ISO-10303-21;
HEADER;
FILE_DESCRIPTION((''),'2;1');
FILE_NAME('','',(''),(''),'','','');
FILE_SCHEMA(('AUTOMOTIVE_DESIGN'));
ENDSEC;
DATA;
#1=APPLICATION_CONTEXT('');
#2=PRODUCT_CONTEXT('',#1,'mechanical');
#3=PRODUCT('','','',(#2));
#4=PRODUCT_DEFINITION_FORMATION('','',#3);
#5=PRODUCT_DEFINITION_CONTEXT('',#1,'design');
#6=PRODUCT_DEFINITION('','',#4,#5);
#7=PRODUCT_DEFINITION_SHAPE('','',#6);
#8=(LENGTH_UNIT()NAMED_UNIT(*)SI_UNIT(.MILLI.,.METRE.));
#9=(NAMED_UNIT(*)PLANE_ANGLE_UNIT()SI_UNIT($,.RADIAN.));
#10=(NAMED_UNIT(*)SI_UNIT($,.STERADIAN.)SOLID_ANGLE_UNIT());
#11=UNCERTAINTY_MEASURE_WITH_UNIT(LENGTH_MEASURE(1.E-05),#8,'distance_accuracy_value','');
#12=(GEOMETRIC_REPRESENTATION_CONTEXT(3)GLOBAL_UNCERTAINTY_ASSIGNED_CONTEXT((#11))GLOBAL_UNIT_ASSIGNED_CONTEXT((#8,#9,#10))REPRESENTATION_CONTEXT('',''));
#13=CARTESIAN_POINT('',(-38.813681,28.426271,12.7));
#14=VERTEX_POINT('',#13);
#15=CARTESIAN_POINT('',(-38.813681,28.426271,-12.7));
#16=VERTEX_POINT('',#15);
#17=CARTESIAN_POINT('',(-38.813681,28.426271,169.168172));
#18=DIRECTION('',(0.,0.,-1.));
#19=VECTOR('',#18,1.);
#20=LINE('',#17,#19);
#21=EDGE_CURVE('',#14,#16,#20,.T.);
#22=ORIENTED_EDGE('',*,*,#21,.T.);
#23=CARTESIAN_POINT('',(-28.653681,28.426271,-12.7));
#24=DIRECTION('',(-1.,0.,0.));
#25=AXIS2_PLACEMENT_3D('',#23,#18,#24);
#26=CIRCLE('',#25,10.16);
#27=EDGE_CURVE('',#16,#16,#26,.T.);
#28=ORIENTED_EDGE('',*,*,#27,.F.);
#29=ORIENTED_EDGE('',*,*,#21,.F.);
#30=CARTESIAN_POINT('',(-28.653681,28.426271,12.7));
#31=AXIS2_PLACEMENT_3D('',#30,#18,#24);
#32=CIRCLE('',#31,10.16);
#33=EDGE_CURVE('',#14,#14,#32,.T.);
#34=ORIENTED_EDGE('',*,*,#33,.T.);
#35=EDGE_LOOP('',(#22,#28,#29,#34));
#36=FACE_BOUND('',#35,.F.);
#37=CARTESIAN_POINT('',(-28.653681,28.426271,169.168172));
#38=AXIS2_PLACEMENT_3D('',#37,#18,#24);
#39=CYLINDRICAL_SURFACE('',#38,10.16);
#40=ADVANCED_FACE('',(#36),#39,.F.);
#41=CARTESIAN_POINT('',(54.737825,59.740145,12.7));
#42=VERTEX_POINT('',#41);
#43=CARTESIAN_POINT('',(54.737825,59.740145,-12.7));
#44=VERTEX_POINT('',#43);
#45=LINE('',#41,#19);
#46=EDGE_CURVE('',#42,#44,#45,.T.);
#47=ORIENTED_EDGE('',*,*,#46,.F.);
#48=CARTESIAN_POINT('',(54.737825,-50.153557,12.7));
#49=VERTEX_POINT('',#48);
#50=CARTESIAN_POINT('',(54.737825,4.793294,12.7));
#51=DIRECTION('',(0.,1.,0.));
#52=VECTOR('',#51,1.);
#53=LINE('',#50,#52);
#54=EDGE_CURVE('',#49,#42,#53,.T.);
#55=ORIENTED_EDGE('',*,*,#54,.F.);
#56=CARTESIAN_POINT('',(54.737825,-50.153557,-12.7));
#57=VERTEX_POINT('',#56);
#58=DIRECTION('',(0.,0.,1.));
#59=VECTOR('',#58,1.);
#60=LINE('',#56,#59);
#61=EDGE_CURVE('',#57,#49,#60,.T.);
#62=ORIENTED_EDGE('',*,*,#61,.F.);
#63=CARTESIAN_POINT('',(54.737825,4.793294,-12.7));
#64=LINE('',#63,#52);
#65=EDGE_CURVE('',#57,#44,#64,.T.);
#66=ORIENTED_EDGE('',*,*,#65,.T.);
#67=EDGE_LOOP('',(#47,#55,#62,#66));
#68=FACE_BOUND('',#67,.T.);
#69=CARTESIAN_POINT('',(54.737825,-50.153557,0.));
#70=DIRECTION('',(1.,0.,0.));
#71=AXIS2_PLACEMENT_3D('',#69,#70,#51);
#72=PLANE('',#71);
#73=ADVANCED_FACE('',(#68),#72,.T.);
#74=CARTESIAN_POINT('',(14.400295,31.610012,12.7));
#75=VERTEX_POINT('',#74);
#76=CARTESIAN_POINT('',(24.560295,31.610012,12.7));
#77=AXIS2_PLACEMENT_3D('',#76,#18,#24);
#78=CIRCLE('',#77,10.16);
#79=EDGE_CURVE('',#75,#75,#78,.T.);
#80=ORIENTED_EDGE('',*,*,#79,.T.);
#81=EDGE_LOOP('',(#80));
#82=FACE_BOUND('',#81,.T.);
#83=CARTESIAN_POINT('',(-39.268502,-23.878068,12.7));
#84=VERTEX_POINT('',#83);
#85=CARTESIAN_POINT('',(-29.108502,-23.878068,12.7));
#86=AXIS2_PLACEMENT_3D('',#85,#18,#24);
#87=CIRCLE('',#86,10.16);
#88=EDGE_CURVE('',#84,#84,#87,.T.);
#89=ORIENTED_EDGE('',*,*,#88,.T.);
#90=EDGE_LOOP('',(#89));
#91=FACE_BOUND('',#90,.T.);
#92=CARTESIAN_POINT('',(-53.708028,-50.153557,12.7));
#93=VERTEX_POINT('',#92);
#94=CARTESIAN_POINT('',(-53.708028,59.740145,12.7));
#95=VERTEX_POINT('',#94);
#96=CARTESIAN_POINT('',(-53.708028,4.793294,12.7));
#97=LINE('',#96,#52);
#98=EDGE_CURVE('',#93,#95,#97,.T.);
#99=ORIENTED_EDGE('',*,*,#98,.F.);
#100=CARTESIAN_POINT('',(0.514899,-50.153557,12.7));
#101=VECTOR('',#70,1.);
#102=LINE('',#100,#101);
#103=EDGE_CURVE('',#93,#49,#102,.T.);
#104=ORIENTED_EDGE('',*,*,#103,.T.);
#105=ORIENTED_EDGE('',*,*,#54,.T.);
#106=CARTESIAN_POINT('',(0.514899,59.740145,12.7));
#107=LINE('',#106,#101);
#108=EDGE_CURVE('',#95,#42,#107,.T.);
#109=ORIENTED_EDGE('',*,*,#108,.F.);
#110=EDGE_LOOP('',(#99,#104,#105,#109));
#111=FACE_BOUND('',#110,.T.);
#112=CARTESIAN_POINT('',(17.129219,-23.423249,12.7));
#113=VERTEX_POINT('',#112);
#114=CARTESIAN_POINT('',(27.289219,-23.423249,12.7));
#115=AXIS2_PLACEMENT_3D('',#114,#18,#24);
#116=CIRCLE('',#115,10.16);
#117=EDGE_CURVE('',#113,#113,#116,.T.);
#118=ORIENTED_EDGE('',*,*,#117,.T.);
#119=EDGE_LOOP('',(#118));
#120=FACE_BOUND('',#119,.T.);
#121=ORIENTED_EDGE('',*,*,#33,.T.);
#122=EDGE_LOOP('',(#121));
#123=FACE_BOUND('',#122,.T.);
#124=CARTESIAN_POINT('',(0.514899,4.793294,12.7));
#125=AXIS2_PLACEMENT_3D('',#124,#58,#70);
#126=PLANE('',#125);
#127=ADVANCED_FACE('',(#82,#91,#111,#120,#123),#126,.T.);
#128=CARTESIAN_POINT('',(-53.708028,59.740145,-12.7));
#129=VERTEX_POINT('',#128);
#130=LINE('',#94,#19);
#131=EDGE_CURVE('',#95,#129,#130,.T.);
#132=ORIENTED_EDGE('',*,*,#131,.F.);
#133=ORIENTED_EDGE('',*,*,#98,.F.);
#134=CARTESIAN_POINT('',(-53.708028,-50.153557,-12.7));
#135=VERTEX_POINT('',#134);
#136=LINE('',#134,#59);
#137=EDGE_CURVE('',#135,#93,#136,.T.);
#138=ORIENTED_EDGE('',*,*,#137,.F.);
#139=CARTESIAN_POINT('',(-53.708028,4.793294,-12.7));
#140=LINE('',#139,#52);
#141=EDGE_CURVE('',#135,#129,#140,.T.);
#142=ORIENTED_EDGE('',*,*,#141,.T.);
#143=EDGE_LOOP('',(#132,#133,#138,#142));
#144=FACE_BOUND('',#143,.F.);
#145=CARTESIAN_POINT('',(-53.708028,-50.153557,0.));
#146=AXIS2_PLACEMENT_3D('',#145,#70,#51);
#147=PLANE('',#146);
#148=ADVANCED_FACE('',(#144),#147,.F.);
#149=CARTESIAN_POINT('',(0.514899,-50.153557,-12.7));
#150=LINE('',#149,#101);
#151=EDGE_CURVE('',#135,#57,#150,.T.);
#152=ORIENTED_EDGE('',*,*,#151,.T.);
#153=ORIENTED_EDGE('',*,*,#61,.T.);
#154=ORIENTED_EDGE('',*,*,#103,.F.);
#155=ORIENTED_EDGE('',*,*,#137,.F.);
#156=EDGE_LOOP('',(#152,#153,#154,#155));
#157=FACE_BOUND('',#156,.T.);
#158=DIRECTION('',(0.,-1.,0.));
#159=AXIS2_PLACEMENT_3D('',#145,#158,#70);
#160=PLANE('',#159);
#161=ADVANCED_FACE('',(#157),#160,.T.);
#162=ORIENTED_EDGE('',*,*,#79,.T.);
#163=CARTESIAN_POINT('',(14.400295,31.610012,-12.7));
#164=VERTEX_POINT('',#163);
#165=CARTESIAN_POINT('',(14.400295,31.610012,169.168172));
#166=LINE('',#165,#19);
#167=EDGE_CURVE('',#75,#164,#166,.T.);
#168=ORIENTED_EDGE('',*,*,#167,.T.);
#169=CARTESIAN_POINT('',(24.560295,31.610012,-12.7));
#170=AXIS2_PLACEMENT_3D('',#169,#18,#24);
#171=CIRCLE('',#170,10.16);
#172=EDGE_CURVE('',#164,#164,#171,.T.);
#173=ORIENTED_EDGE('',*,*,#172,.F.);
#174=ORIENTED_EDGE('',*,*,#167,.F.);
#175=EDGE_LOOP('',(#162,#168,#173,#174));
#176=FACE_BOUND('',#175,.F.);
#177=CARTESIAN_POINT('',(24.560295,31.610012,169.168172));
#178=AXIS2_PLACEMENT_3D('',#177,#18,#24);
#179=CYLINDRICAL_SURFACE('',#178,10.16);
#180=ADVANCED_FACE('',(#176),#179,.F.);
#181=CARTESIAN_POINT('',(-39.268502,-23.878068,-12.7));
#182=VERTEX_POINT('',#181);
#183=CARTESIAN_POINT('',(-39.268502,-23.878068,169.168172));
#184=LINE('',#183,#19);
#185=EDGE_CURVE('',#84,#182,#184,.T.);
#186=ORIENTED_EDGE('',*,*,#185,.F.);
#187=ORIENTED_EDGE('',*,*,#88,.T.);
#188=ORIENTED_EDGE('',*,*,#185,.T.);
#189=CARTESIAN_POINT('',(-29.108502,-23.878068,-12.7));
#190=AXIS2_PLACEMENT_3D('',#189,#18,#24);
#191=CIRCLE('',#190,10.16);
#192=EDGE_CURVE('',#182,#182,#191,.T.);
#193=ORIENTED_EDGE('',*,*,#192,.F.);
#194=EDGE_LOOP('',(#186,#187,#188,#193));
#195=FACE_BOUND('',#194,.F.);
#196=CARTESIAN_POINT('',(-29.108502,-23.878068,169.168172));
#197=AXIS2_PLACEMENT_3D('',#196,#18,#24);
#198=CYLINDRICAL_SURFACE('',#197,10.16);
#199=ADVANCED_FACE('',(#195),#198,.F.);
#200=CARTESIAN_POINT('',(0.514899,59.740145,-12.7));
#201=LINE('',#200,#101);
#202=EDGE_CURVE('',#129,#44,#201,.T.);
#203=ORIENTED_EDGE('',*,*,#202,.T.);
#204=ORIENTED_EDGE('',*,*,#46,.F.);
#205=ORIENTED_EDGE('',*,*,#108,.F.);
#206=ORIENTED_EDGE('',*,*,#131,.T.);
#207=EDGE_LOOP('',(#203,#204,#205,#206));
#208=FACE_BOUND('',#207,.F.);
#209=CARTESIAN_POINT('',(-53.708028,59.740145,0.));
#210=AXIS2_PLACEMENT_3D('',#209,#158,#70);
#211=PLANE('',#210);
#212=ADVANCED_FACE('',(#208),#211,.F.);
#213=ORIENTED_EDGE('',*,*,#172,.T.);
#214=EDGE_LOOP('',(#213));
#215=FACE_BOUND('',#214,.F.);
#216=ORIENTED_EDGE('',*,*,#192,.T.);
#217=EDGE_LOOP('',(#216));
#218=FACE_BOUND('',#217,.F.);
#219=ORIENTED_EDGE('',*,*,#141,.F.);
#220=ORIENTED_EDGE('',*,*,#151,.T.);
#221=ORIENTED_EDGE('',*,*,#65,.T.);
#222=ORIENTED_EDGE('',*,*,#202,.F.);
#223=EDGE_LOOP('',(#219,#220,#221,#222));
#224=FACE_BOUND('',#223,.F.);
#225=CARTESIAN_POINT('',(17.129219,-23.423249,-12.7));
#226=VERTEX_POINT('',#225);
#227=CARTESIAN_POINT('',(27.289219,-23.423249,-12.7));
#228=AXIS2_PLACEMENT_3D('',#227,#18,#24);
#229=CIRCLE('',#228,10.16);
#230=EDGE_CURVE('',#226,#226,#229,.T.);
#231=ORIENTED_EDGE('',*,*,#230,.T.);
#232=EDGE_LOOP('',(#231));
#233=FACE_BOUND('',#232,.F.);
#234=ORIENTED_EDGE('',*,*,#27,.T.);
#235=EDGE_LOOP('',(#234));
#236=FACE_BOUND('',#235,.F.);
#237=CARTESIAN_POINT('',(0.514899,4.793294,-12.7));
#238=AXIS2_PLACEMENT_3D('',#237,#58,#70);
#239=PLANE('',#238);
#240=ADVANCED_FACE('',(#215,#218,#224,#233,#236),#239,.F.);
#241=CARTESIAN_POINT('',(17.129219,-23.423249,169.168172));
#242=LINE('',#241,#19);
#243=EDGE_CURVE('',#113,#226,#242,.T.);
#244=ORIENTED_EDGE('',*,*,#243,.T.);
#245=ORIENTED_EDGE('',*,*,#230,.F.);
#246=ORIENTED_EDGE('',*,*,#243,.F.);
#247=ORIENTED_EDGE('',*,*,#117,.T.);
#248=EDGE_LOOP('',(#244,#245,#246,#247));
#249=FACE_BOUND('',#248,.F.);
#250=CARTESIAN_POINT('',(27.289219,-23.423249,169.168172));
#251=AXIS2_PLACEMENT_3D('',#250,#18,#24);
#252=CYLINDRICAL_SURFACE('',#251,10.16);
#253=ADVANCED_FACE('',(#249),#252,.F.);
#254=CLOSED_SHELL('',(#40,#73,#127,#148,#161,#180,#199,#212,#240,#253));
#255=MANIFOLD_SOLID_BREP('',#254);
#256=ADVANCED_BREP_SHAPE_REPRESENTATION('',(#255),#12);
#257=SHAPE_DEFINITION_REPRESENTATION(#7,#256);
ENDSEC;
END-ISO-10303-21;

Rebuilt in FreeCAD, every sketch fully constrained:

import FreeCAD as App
import Part
import Sketcher
from FreeCAD import Vector
Q = App.Units.Quantity


def add_polygon(sketch, points):
    """Adds a closed chain of lines whose ends are joined by coincident constraints."""
    first, n = sketch.GeometryCount, len(points)
    for a, b in zip(points, points[1:] + points[:1]):
        sketch.addGeometry(Part.LineSegment(App.Vector(*a, 0), App.Vector(*b, 0)), False)
    for i in range(n):
        sketch.addConstraint(Sketcher.Constraint("Coincident", first + i, 2, first + (i + 1) % n, 1))

doc = App.newDocument("Part")
body = doc.addObject("PartDesign::Body", "Body")

# Sketch on XY plane
sketch1 = body.newObject("Sketcher::SketchObject", "Sketch")
sketch1.AttachmentSupport = (doc.getObject("XY_Plane"), [""])
sketch1.MapMode = "FlatFace"
add_polygon(sketch1, [(-53.708028, 59.740145), (-53.708028, -50.153557), (54.737825, -50.153557), (54.737825, 59.740145)])  # lines 0-3
sketch1.addConstraint(Sketcher.Constraint("Vertical", 0))
sketch1.addConstraint(Sketcher.Constraint("Horizontal", 1))
sketch1.addConstraint(Sketcher.Constraint("Vertical", 2))
sketch1.addConstraint(Sketcher.Constraint("Horizontal", 3))
sketch1.addConstraint(Sketcher.Constraint("DistanceY", 0, 2, 0, 1, 109.893702))
sketch1.addConstraint(Sketcher.Constraint("DistanceX", 1, 1, 1, 2, 108.445853))
sketch1.addConstraint(Sketcher.Constraint("DistanceX", 0, 2, -1, 1, 53.708028))
sketch1.addConstraint(Sketcher.Constraint("DistanceY", 0, 2, -1, 1, 50.153557))
pad1 = body.newObject("PartDesign::Pad", "Pad")
pad1.Profile = sketch1
pad1.Length = Q("1 in")
pad1.Midplane = True

# Sketch on XY plane
sketch2 = body.newObject("Sketcher::SketchObject", "Sketch001")
sketch2.AttachmentSupport = (doc.getObject("XY_Plane"), [""])
sketch2.MapMode = "FlatFace"
sketch2.AttachmentOffset = App.Placement(Vector(0, 0, 0.5 * 25.4), App.Rotation())
sketch2.addGeometry(Part.Circle(Vector(-28.653681, 28.426271, 0), Vector(0, 0, 1), 10.16), False)
sketch2.addGeometry(Part.Circle(Vector(-29.108502, -23.878068, 0), Vector(0, 0, 1), 10.16), False)
sketch2.addGeometry(Part.Circle(Vector(27.289219, -23.423249, 0), Vector(0, 0, 1), 10.16), False)
sketch2.addGeometry(Part.Circle(Vector(24.560295, 31.610012, 0), Vector(0, 0, 1), 10.16), False)
sketch2.addConstraint(Sketcher.Constraint("Equal", 0, 1))
sketch2.addConstraint(Sketcher.Constraint("Equal", 1, 2))
sketch2.addConstraint(Sketcher.Constraint("Equal", 2, 3))
sketch2.addConstraint(Sketcher.Constraint("Diameter", 0, Q("0.8 in")))
sketch2.addConstraint(Sketcher.Constraint("DistanceX", 0, 3, 2, 3, 55.9429))
sketch2.addConstraint(Sketcher.Constraint("DistanceX", 0, 3, -1, 1, 28.653681))
sketch2.addConstraint(Sketcher.Constraint("DistanceY", -1, 1, 0, 3, 28.426271))
sketch2.addConstraint(Sketcher.Constraint("DistanceY", 2, 3, -1, 1, 23.423249))
sketch2.addConstraint(Sketcher.Constraint("DistanceX", 1, 3, 0, 3, 0.454821))
sketch2.addConstraint(Sketcher.Constraint("DistanceY", 1, 3, 0, 3, 52.304339))
sketch2.addConstraint(Sketcher.Constraint("DistanceY", 0, 3, 3, 3, 3.183741))
sketch2.addConstraint(Sketcher.Constraint("DistanceX", -1, 1, 3, 3, 24.560295))
doc.recompute()
hole = body.newObject("PartDesign::Hole", "Hole")
hole.Profile = sketch2
hole.ThreadType = "None"
hole.Diameter = Q("0.8 in")
hole.DepthType = "ThroughAll"

doc.recompute()
